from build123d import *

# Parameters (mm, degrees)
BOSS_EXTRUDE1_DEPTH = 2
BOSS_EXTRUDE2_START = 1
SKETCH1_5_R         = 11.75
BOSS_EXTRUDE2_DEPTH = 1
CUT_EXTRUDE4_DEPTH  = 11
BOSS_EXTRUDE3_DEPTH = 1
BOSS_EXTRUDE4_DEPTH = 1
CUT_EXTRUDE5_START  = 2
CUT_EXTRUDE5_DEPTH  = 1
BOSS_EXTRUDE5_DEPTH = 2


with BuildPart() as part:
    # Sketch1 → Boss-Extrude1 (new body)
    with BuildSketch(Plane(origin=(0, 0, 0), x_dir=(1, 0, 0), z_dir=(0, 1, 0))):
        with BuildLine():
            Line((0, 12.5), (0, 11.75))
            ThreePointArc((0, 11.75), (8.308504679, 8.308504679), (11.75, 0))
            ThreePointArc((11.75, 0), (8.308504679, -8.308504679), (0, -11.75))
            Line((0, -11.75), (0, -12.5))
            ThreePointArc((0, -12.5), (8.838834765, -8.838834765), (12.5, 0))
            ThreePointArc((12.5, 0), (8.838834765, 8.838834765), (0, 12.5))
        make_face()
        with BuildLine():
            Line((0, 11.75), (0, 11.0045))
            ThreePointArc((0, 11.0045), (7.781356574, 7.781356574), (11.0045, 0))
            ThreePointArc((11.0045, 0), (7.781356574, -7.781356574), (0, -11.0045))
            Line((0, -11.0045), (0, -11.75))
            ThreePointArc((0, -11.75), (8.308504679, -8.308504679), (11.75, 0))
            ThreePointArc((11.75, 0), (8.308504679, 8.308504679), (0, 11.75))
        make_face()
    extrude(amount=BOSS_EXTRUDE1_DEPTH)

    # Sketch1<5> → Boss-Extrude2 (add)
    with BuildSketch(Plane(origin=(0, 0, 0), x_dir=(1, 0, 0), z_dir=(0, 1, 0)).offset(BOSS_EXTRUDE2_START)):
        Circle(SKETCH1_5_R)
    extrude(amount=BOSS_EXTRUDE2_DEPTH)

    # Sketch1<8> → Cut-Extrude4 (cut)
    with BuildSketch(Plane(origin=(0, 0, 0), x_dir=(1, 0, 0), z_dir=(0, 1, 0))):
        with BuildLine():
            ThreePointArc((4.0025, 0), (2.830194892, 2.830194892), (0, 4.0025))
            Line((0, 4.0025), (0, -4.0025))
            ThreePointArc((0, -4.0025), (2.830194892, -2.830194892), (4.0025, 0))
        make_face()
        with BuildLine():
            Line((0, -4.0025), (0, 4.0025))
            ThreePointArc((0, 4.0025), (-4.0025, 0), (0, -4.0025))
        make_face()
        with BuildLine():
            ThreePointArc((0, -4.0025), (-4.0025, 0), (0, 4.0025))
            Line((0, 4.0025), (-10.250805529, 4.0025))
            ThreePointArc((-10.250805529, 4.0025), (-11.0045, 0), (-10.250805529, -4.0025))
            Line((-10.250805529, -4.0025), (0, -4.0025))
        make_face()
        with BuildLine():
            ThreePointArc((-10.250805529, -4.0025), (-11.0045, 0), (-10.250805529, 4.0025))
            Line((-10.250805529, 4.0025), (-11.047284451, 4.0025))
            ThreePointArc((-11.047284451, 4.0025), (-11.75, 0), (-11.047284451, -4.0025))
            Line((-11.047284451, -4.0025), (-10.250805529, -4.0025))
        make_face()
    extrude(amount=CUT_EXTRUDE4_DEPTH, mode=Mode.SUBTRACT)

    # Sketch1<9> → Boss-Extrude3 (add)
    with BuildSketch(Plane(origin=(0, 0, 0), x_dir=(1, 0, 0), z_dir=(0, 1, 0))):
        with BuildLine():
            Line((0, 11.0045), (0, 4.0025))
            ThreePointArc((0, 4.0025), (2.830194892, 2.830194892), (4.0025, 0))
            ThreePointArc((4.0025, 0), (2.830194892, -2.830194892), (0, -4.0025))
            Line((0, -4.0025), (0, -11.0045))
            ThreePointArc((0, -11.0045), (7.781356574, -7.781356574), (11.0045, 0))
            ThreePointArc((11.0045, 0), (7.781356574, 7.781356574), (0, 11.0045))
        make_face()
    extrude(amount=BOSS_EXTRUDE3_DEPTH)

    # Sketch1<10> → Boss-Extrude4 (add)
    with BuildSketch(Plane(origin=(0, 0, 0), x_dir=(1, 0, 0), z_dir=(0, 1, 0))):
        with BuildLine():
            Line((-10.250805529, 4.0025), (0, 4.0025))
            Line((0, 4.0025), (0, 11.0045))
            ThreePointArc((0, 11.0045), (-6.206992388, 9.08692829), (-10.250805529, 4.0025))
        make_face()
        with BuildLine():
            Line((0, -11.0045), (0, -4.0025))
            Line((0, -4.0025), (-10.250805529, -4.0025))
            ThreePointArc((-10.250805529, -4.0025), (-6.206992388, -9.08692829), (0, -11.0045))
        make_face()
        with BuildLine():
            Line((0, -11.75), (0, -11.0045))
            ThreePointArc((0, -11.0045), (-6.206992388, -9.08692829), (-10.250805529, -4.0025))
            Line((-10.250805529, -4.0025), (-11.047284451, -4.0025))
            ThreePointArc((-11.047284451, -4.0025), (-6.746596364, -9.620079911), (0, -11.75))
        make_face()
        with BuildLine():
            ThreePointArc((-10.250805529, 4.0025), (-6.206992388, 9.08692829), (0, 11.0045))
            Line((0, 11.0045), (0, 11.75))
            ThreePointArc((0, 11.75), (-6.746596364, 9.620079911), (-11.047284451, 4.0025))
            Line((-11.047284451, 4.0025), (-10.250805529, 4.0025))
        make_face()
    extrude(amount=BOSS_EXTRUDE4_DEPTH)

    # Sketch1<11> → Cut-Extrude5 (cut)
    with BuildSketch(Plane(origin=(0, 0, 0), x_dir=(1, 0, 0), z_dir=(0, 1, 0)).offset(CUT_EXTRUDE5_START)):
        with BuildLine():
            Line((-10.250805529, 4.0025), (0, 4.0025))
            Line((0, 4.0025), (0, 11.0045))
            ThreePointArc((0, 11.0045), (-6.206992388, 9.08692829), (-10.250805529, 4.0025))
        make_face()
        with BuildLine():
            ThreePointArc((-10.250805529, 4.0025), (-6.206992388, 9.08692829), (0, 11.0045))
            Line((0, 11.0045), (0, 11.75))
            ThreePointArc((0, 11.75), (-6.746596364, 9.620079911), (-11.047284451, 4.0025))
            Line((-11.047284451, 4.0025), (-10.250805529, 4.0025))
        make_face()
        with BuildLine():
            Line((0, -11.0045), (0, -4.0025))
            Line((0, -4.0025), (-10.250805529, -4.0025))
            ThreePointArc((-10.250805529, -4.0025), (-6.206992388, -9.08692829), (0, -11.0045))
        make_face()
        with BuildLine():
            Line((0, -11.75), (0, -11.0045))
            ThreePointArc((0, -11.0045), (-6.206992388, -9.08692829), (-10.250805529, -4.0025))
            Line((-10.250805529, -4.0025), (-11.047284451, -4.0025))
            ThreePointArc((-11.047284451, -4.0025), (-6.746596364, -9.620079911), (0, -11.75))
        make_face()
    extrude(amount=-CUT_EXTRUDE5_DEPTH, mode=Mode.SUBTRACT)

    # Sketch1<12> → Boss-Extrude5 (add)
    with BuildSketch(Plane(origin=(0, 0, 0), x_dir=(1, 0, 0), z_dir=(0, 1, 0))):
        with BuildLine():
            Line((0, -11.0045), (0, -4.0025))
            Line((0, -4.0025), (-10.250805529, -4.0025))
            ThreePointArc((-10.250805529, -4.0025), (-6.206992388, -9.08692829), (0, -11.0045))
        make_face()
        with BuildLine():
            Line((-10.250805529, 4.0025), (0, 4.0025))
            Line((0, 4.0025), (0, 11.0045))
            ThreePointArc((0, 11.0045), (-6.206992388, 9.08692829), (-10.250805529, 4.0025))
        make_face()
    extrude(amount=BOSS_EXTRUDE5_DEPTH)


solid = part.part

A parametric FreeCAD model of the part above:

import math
import FreeCAD as App
import Part
import Sketcher

doc = App.newDocument("Part")
body = doc.addObject("PartDesign::Body", "Body")

# Sketch on XZ plane
sketch1 = body.newObject("Sketcher::SketchObject", "Sketch")
sketch1.AttachmentSupport = (doc.getObject("XZ_Plane"), [""])
sketch1.MapMode = "FlatFace"
sketch1.addGeometry(Part.LineSegment(App.Vector(0, -12.5, 0), App.Vector(0, -11, 0)), False)
sketch1.addGeometry(Part.ArcOfCircle(Part.Circle(App.Vector(0, 0, 0), App.Vector(0, 0, 1), 11), math.radians(-90), math.radians(0)), False)
sketch1.addGeometry(Part.ArcOfCircle(Part.Circle(App.Vector(0, 0, 0), App.Vector(0, 0, 1), 11), math.radians(0), math.radians(90)), False)
sketch1.addGeometry(Part.LineSegment(App.Vector(0, 11, 0), App.Vector(0, 12.5, 0)), False)
sketch1.addGeometry(Part.ArcOfCircle(Part.Circle(App.Vector(0, 0, 0), App.Vector(0, 0, 1), 12.5), math.radians(0), math.radians(90)), False)
sketch1.addGeometry(Part.ArcOfCircle(Part.Circle(App.Vector(0, 0, 0), App.Vector(0, 0, 1), 12.5), math.radians(-90), math.radians(0)), False)
sketch1.addConstraint(Sketcher.Constraint("Coincident", 0, 2, 1, 1))
sketch1.addConstraint(Sketcher.Constraint("Tangent", 1, 2, 2, 1))
sketch1.addConstraint(Sketcher.Constraint("Coincident", 2, 2, 3, 1))
sketch1.addConstraint(Sketcher.Constraint("Coincident", 3, 2, 4, 2))
sketch1.addConstraint(Sketcher.Constraint("Tangent", 4, 1, 5, 2))
sketch1.addConstraint(Sketcher.Constraint("Coincident", 5, 1, 0, 1))
sketch1.addConstraint(Sketcher.Constraint("Vertical", 0))
sketch1.addConstraint(Sketcher.Constraint("Vertical", 3))
sketch1.addConstraint(Sketcher.Constraint("Coincident", 1, 3, -1, 1))
sketch1.addConstraint(Sketcher.Constraint("Coincident", 4, 3, -1, 1))
sketch1.addConstraint(Sketcher.Constraint("Equal", 1, 2))
sketch1.addConstraint(Sketcher.Constraint("Equal", 4, 5))
sketch1.addConstraint(Sketcher.Constraint("PointOnObject", 0, 2, -2))
sketch1.addConstraint(Sketcher.Constraint("PointOnObject", 1, 2, -1))
sketch1.addConstraint(Sketcher.Constraint("PointOnObject", 2, 2, -2))
sketch1.addConstraint(Sketcher.Constraint("PointOnObject", 4, 1, -1))
sketch1.addConstraint(Sketcher.Constraint("Radius", 4, 12.5))
sketch1.addConstraint(Sketcher.Constraint("Radius", 1, 11.0045))
pad1 = body.newObject("PartDesign::Pad", "Pad")
pad1.Profile = sketch1
pad1.Length = 2
pad1.Reversed = True

# Sketch on XZ plane
sketch2 = body.newObject("Sketcher::SketchObject", "Sketch001")
sketch2.AttachmentSupport = (doc.getObject("XZ_Plane"), [""])
sketch2.MapMode = "FlatFace"
sketch2.AttachmentOffset = App.Placement(App.Vector(0, 0, -1), App.Rotation())
sketch2.addGeometry(Part.Circle(App.Vector(0, 0, 0), App.Vector(0, 0, 1), 12), False)
sketch2.addConstraint(Sketcher.Constraint("Coincident", 0, 3, -1, 1))
sketch2.addConstraint(Sketcher.Constraint("Diameter", 0, 23.5))
pad2 = body.newObject("PartDesign::Pad", "Pad001")
pad2.Profile = sketch2
pad2.Length = 1
pad2.Reversed = True

# Sketch on XZ plane
sketch3 = body.newObject("Sketcher::SketchObject", "Sketch002")
sketch3.AttachmentSupport = (doc.getObject("XZ_Plane"), [""])
sketch3.MapMode = "FlatFace"
sketch3.addGeometry(Part.ArcOfCircle(Part.Circle(App.Vector(0, 0, 0), App.Vector(0, 0, 1), 4), math.radians(-90), math.radians(0)), False)
sketch3.addGeometry(Part.LineSegment(App.Vector(0, -4, 0), App.Vector(-11, -4, 0)), False)
sketch3.addGeometry(Part.ArcOfCircle(Part.Circle(App.Vector(0, 0, 0), App.Vector(0, 0, 1), 11.7), math.radians(160), math.radians(200)), False)
sketch3.addGeometry(Part.LineSegment(App.Vector(-11, 4, 0), App.Vector(0, 4, 0)), False)
sketch3.addGeometry(Part.ArcOfCircle(Part.Circle(App.Vector(0, 0, 0), App.Vector(0, 0, 1), 4), math.radians(0), math.radians(90)), False)
sketch3.addConstraint(Sketcher.Constraint("Tangent", 0, 1, 1, 1))
sketch3.addConstraint(Sketcher.Constraint("Coincident", 1, 2, 2, 2))
sketch3.addConstraint(Sketcher.Constraint("Coincident", 2, 1, 3, 1))
sketch3.addConstraint(Sketcher.Constraint("Tangent", 3, 2, 4, 2))
sketch3.addConstraint(Sketcher.Constraint("Tangent", 4, 1, 0, 2))
sketch3.addConstraint(Sketcher.Constraint("Horizontal", 1))
sketch3.addConstraint(Sketcher.Constraint("Horizontal", 3))
sketch3.addConstraint(Sketcher.Constraint("Coincident", 0, 3, -1, 1))
sketch3.addConstraint(Sketcher.Constraint("Coincident", 2, 3, -1, 1))
sketch3.addConstraint(Sketcher.Constraint("Equal", 0, 4))
sketch3.addConstraint(Sketcher.Constraint("PointOnObject", 4, 1, -1))
sketch3.addConstraint(Sketcher.Constraint("Radius", 2, 11.75))
sketch3.addConstraint(Sketcher.Constraint("Radius", 0, 4.0025))
pocket1 = body.newObject("PartDesign::Pocket", "Pocket")
pocket1.Profile = sketch3
pocket1.Length = 11

# Sketch on XZ plane
sketch4 = body.newObject("Sketcher::SketchObject", "Sketch003")
sketch4.AttachmentSupport = (doc.getObject("XZ_Plane"), [""])
sketch4.MapMode = "FlatFace"
sketch4.addGeometry(Part.LineSegment(App.Vector(0, -11, 0), App.Vector(0, -4, 0)), False)
sketch4.addGeometry(Part.ArcOfCircle(Part.Circle(App.Vector(0, 0, 0), App.Vector(0, 0, 1), 4), math.radians(-90), math.radians(0)), False)
sketch4.addGeometry(Part.ArcOfCircle(Part.Circle(App.Vector(0, 0, 0), App.Vector(0, 0, 1), 4), math.radians(0), math.radians(90)), False)
sketch4.addGeometry(Part.LineSegment(App.Vector(0, 4, 0), App.Vector(0, 11, 0)), False)
sketch4.addGeometry(Part.ArcOfCircle(Part.Circle(App.Vector(0, 0, 0), App.Vector(0, 0, 1), 11), math.radians(0), math.radians(90)), False)
sketch4.addGeometry(Part.ArcOfCircle(Part.Circle(App.Vector(0, 0, 0), App.Vector(0, 0, 1), 11), math.radians(-90), math.radians(0)), False)
sketch4.addConstraint(Sketcher.Constraint("Coincident", 0, 2, 1, 1))
sketch4.addConstraint(Sketcher.Constraint("Tangent", 1, 2, 2, 1))
sketch4.addConstraint(Sketcher.Constraint("Coincident", 2, 2, 3, 1))
sketch4.addConstraint(Sketcher.Constraint("Coincident", 3, 2, 4, 2))
sketch4.addConstraint(Sketcher.Constraint("Tangent", 4, 1, 5, 2))
sketch4.addConstraint(Sketcher.Constraint("Coincident", 5, 1, 0, 1))
sketch4.addConstraint(Sketcher.Constraint("Vertical", 0))
sketch4.addConstraint(Sketcher.Constraint("Vertical", 3))
sketch4.addConstraint(Sketcher.Constraint("Coincident", 1, 3, -1, 1))
sketch4.addConstraint(Sketcher.Constraint("Coincident", 4, 3, -1, 1))
sketch4.addConstraint(Sketcher.Constraint("Equal", 1, 2))
sketch4.addConstraint(Sketcher.Constraint("Equal", 4, 5))
sketch4.addConstraint(Sketcher.Constraint("PointOnObject", 0, 2, -2))
sketch4.addConstraint(Sketcher.Constraint("PointOnObject", 1, 2, -1))
sketch4.addConstraint(Sketcher.Constraint("PointOnObject", 2, 2, -2))
sketch4.addConstraint(Sketcher.Constraint("PointOnObject", 4, 1, -1))
sketch4.addConstraint(Sketcher.Constraint("Radius", 1, 4.0025))
sketch4.addConstraint(Sketcher.Constraint("Radius", 4, 11.0045))
pad3 = body.newObject("PartDesign::Pad", "Pad002")
pad3.Profile = sketch4
pad3.Length = 1
pad3.Reversed = True

# Sketch on XZ plane
sketch5 = body.newObject("Sketcher::SketchObject", "Sketch004")
sketch5.AttachmentSupport = (doc.getObject("XZ_Plane"), [""])
sketch5.MapMode = "FlatFace"
sketch5.addGeometry(Part.LineSegment(App.Vector(0, -4, 0), App.Vector(0, -12, 0)), False)
sketch5.addGeometry(Part.ArcOfCircle(Part.Circle(App.Vector(0, 0, 0), App.Vector(0, 0, 1), 12), math.radians(-160), math.radians(-90)), False)
sketch5.addGeometry(Part.LineSegment(App.Vector(-11, -4, 0), App.Vector(0, -4, 0)), False)
sketch5.addGeometry(Part.LineSegment(App.Vector(0, 4, 0), App.Vector(-11, 4, 0)), False)
sketch5.addGeometry(Part.ArcOfCircle(Part.Circle(App.Vector(0, 0, 0), App.Vector(0, 0, 1), 12), math.radians(90), math.radians(160)), False)
sketch5.addGeometry(Part.LineSegment(App.Vector(0, 12, 0), App.Vector(0, 4, 0)), False)
sketch5.addConstraint(Sketcher.Constraint("Coincident", 0, 2, 1, 2))
sketch5.addConstraint(Sketcher.Constraint("Coincident", 1, 1, 2, 1))
sketch5.addConstraint(Sketcher.Constraint("Coincident", 2, 2, 0, 1))
sketch5.addConstraint(Sketcher.Constraint("Coincident", 3, 2, 4, 2))
sketch5.addConstraint(Sketcher.Constraint("Coincident", 4, 1, 5, 1))
sketch5.addConstraint(Sketcher.Constraint("Coincident", 5, 2, 3, 1))
sketch5.addConstraint(Sketcher.Constraint("Vertical", 0))
sketch5.addConstraint(Sketcher.Constraint("Horizontal", 2))
sketch5.addConstraint(Sketcher.Constraint("Horizontal", 3))
sketch5.addConstraint(Sketcher.Constraint("Vertical", 5))
sketch5.addConstraint(Sketcher.Constraint("Coincident", 1, 3, -1, 1))
sketch5.addConstraint(Sketcher.Constraint("Coincident", 4, 3, -1, 1))
sketch5.addConstraint(Sketcher.Constraint("Equal", 1, 4))
sketch5.addConstraint(Sketcher.Constraint("Symmetric", 2, 2, 5, 2, -1, 1))
sketch5.addConstraint(Sketcher.Constraint("PointOnObject", 0, 2, -2))
sketch5.addConstraint(Sketcher.Constraint("Radius", 1, 11.75))
sketch5.addConstraint(Sketcher.Constraint("DistanceY", 0, 2, 0, 1, 7.7475))
pad4 = body.newObject("PartDesign::Pad", "Pad003")
pad4.Profile = sketch5
pad4.Length = 1
pad4.Reversed = True

# Sketch on XZ plane
sketch6 = body.newObject("Sketcher::SketchObject", "Sketch005")
sketch6.AttachmentSupport = (doc.getObject("XZ_Plane"), [""])
sketch6.MapMode = "FlatFace"
sketch6.AttachmentOffset = App.Placement(App.Vector(0, 0, -2), App.Rotation())
sketch6.addGeometry(Part.LineSegment(App.Vector(0, -4, 0), App.Vector(0, -12, 0)), False)
sketch6.addGeometry(Part.ArcOfCircle(Part.Circle(App.Vector(0, 0, 0), App.Vector(0, 0, 1), 12), math.radians(-160), math.radians(-90)), False)
sketch6.addGeometry(Part.LineSegment(App.Vector(-11, -4, 0), App.Vector(0, -4, 0)), False)
sketch6.addGeometry(Part.LineSegment(App.Vector(0, 4, 0), App.Vector(-11, 4, 0)), False)
sketch6.addGeometry(Part.ArcOfCircle(Part.Circle(App.Vector(0, 0, 0), App.Vector(0, 0, 1), 12), math.radians(90), math.radians(160)), False)
sketch6.addGeometry(Part.LineSegment(App.Vector(0, 12, 0), App.Vector(0, 4, 0)), False)
sketch6.addConstraint(Sketcher.Constraint("Coincident", 0, 2, 1, 2))
sketch6.addConstraint(Sketcher.Constraint("Coincident", 1, 1, 2, 1))
sketch6.addConstraint(Sketcher.Constraint("Coincident", 2, 2, 0, 1))
sketch6.addConstraint(Sketcher.Constraint("Coincident", 3, 2, 4, 2))
sketch6.addConstraint(Sketcher.Constraint("Coincident", 4, 1, 5, 1))
sketch6.addConstraint(Sketcher.Constraint("Coincident", 5, 2, 3, 1))
sketch6.addConstraint(Sketcher.Constraint("Vertical", 0))
sketch6.addConstraint(Sketcher.Constraint("Horizontal", 2))
sketch6.addConstraint(Sketcher.Constraint("Horizontal", 3))
sketch6.addConstraint(Sketcher.Constraint("Vertical", 5))
sketch6.addConstraint(Sketcher.Constraint("Coincident", 1, 3, -1, 1))
sketch6.addConstraint(Sketcher.Constraint("Coincident", 4, 3, -1, 1))
sketch6.addConstraint(Sketcher.Constraint("Equal", 1, 4))
sketch6.addConstraint(Sketcher.Constraint("Symmetric", 2, 2, 5, 2, -1, 1))
sketch6.addConstraint(Sketcher.Constraint("PointOnObject", 0, 2, -2))
sketch6.addConstraint(Sketcher.Constraint("Radius", 1, 11.75))
sketch6.addConstraint(Sketcher.Constraint("DistanceY", 0, 2, 0, 1, 7.7475))
pocket2 = body.newObject("PartDesign::Pocket", "Pocket001")
pocket2.Profile = sketch6
pocket2.Length = 1
pocket2.Reversed = True

# Sketch on XZ plane
sketch7 = body.newObject("Sketcher::SketchObject", "Sketch006")
sketch7.AttachmentSupport = (doc.getObject("XZ_Plane"), [""])
sketch7.MapMode = "FlatFace"
sketch7.addGeometry(Part.LineSegment(App.Vector(0, 11, 0), App.Vector(0, 4, 0)), False)
sketch7.addGeometry(Part.LineSegment(App.Vector(0, 4, 0), App.Vector(-10, 4, 0)), False)
sketch7.addGeometry(Part.ArcOfCircle(Part.Circle(App.Vector(0, 0, 0), App.Vector(0, 0, 1), 11), math.radians(90), math.radians(159)), False)
sketch7.addGeometry(Part.LineSegment(App.Vector(-10, -4, 0), App.Vector(0, -4, 0)), False)
sketch7.addGeometry(Part.LineSegment(App.Vector(0, -4, 0), App.Vector(0, -11, 0)), False)
sketch7.addGeometry(Part.ArcOfCircle(Part.Circle(App.Vector(0, 0, 0), App.Vector(0, 0, 1), 11), math.radians(-159), math.radians(-90)), False)
sketch7.addConstraint(Sketcher.Constraint("Coincident", 0, 2, 1, 1))
sketch7.addConstraint(Sketcher.Constraint("Coincident", 1, 2, 2, 2))
sketch7.addConstraint(Sketcher.Constraint("Coincident", 2, 1, 0, 1))
sketch7.addConstraint(Sketcher.Constraint("Coincident", 3, 2, 4, 1))
sketch7.addConstraint(Sketcher.Constraint("Coincident", 4, 2, 5, 2))
sketch7.addConstraint(Sketcher.Constraint("Coincident", 5, 1, 3, 1))
sketch7.addConstraint(Sketcher.Constraint("Vertical", 0))
sketch7.addConstraint(Sketcher.Constraint("Horizontal", 1))
sketch7.addConstraint(Sketcher.Constraint("Horizontal", 3))
sketch7.addConstraint(Sketcher.Constraint("Vertical", 4))
sketch7.addConstraint(Sketcher.Constraint("Coincident", 2, 3, -1, 1))
sketch7.addConstraint(Sketcher.Constraint("Coincident", 5, 3, -1, 1))
sketch7.addConstraint(Sketcher.Constraint("Equal", 2, 5))
sketch7.addConstraint(Sketcher.Constraint("Symmetric", 0, 2, 3, 2, -1, 1))
sketch7.addConstraint(Sketcher.Constraint("PointOnObject", 0, 2, -2))
sketch7.addConstraint(Sketcher.Constraint("Radius", 2, 11.0045))
sketch7.addConstraint(Sketcher.Constraint("DistanceY", 0, 2, 0, 1, 7.002))
pad5 = body.newObject("PartDesign::Pad", "Pad004")
pad5.Profile = sketch7
pad5.Length = 2
pad5.Reversed = True

doc.recompute()
